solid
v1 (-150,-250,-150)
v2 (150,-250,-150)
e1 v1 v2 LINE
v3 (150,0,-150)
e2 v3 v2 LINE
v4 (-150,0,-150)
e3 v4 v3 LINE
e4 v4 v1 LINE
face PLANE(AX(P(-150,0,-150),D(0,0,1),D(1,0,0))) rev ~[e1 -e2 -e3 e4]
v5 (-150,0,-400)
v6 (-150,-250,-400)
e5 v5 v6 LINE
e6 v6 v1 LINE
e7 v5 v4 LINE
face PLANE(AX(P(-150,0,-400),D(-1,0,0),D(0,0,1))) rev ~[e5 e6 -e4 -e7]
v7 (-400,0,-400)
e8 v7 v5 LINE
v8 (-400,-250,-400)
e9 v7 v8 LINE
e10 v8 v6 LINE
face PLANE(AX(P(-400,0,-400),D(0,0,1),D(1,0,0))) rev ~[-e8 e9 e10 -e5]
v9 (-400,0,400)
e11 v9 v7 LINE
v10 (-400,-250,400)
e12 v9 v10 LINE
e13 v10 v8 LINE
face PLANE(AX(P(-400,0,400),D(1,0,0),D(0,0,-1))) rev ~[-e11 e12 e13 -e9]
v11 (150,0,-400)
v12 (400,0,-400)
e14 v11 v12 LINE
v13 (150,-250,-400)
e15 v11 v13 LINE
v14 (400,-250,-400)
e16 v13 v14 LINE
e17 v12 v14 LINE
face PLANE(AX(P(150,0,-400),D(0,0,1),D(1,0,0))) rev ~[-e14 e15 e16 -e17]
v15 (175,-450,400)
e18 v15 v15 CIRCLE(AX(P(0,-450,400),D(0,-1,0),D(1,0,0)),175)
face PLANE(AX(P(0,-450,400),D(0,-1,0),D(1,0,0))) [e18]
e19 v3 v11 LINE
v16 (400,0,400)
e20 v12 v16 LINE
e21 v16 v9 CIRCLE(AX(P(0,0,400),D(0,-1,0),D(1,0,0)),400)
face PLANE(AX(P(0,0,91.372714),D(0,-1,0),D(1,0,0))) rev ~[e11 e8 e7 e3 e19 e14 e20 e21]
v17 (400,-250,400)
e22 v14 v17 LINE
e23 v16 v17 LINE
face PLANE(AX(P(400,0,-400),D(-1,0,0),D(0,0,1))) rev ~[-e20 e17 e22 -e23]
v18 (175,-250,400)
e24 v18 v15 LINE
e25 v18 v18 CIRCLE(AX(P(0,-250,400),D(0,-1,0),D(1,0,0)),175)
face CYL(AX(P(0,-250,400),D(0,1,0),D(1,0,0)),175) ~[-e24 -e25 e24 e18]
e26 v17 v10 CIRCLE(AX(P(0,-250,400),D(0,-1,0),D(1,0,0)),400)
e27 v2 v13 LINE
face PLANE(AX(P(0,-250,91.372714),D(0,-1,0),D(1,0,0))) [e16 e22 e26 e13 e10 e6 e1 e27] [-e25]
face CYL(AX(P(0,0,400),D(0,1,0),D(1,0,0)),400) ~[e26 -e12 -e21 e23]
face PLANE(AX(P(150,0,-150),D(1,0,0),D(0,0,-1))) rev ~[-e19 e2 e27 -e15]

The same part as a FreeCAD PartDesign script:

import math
import FreeCAD as App
import Part
import Sketcher
from FreeCAD import Vector

doc = App.newDocument("Part")
body = doc.addObject("PartDesign::Body", "Body")

# Sketch on XZ plane
sketch1 = body.newObject("Sketcher::SketchObject", "Sketch")
sketch1.AttachmentSupport = (doc.getObject("XZ_Plane"), [""])
sketch1.MapMode = "FlatFace"
sketch1.addGeometry([
    Part.LineSegment(Vector(150, -400, 0), Vector(400, -400, 0)),  # 0
    Part.LineSegment(Vector(400, -400, 0), Vector(400, 400, 0)),  # 1
    Part.ArcOfCircle(Part.Circle(Vector(0, 400, 0), Vector(0, 0, 1), 400), math.radians(0), math.radians(180)),  # 2
    Part.LineSegment(Vector(-400, 400, 0), Vector(-400, -400, 0)),  # 3
    Part.LineSegment(Vector(-400, -400, 0), Vector(-150, -400, 0)),  # 4
    Part.LineSegment(Vector(-150, -400, 0), Vector(-150, -150, 0)),  # 5
    Part.LineSegment(Vector(-150, -150, 0), Vector(150, -150, 0)),  # 6
    Part.LineSegment(Vector(150, -150, 0), Vector(150, -400, 0)),  # 7
], False)
sketch1.addConstraint([
    Sketcher.Constraint("Coincident", 0, 2, 1, 1),
    Sketcher.Constraint("Tangent", 1, 2, 2, 1),
    Sketcher.Constraint("Tangent", 2, 2, 3, 1),
    Sketcher.Constraint("Coincident", 3, 2, 4, 1),
    Sketcher.Constraint("Coincident", 4, 2, 5, 1),
    Sketcher.Constraint("Coincident", 5, 2, 6, 1),
    Sketcher.Constraint("Coincident", 6, 2, 7, 1),
    Sketcher.Constraint("Coincident", 7, 2, 0, 1),
    Sketcher.Constraint("Horizontal", 0),
    Sketcher.Constraint("Vertical", 1),
    Sketcher.Constraint("Vertical", 3),
    Sketcher.Constraint("Horizontal", 4),
    Sketcher.Constraint("Vertical", 5),
    Sketcher.Constraint("Horizontal", 6),
    Sketcher.Constraint("Vertical", 7),
    Sketcher.Constraint("Symmetric", 1, 2, 3, 2, -1, 1),
    Sketcher.Constraint("Symmetric", 4, 2, 7, 2, -2),
    Sketcher.Constraint("Equal", 4, 5),
    Sketcher.Constraint("Radius", 2, 400.0),
    Sketcher.Constraint("DistanceX", 0, 1, 0, 2, 250.0),
    Sketcher.Constraint("DistanceY", 1, 1, 1, 2, 800.0),
])
pad1 = body.newObject("PartDesign::Pad", "Pad")
pad1.Profile = sketch1
pad1.Length = 250

# Sketch on XZ plane
sketch2 = body.newObject("Sketcher::SketchObject", "Sketch001")
sketch2.AttachmentSupport = (doc.getObject("XZ_Plane"), [""])
sketch2.MapMode = "FlatFace"
sketch2.AttachmentOffset = App.Placement(Vector(0, 0, 250), App.Rotation())
sketch2.addGeometry(Part.Circle(Vector(0, 400, 0), Vector(0, 0, 1), 175), False)
sketch2.addConstraint([
    Sketcher.Constraint("PointOnObject", 0, 3, -2),
    Sketcher.Constraint("Diameter", 0, 350.0),
    Sketcher.Constraint("DistanceY", -1, 1, 0, 3, 400.0),
])
pad2 = body.newObject("PartDesign::Pad", "Pad001")
pad2.Profile = sketch2
pad2.Length = 200

doc.recompute()
